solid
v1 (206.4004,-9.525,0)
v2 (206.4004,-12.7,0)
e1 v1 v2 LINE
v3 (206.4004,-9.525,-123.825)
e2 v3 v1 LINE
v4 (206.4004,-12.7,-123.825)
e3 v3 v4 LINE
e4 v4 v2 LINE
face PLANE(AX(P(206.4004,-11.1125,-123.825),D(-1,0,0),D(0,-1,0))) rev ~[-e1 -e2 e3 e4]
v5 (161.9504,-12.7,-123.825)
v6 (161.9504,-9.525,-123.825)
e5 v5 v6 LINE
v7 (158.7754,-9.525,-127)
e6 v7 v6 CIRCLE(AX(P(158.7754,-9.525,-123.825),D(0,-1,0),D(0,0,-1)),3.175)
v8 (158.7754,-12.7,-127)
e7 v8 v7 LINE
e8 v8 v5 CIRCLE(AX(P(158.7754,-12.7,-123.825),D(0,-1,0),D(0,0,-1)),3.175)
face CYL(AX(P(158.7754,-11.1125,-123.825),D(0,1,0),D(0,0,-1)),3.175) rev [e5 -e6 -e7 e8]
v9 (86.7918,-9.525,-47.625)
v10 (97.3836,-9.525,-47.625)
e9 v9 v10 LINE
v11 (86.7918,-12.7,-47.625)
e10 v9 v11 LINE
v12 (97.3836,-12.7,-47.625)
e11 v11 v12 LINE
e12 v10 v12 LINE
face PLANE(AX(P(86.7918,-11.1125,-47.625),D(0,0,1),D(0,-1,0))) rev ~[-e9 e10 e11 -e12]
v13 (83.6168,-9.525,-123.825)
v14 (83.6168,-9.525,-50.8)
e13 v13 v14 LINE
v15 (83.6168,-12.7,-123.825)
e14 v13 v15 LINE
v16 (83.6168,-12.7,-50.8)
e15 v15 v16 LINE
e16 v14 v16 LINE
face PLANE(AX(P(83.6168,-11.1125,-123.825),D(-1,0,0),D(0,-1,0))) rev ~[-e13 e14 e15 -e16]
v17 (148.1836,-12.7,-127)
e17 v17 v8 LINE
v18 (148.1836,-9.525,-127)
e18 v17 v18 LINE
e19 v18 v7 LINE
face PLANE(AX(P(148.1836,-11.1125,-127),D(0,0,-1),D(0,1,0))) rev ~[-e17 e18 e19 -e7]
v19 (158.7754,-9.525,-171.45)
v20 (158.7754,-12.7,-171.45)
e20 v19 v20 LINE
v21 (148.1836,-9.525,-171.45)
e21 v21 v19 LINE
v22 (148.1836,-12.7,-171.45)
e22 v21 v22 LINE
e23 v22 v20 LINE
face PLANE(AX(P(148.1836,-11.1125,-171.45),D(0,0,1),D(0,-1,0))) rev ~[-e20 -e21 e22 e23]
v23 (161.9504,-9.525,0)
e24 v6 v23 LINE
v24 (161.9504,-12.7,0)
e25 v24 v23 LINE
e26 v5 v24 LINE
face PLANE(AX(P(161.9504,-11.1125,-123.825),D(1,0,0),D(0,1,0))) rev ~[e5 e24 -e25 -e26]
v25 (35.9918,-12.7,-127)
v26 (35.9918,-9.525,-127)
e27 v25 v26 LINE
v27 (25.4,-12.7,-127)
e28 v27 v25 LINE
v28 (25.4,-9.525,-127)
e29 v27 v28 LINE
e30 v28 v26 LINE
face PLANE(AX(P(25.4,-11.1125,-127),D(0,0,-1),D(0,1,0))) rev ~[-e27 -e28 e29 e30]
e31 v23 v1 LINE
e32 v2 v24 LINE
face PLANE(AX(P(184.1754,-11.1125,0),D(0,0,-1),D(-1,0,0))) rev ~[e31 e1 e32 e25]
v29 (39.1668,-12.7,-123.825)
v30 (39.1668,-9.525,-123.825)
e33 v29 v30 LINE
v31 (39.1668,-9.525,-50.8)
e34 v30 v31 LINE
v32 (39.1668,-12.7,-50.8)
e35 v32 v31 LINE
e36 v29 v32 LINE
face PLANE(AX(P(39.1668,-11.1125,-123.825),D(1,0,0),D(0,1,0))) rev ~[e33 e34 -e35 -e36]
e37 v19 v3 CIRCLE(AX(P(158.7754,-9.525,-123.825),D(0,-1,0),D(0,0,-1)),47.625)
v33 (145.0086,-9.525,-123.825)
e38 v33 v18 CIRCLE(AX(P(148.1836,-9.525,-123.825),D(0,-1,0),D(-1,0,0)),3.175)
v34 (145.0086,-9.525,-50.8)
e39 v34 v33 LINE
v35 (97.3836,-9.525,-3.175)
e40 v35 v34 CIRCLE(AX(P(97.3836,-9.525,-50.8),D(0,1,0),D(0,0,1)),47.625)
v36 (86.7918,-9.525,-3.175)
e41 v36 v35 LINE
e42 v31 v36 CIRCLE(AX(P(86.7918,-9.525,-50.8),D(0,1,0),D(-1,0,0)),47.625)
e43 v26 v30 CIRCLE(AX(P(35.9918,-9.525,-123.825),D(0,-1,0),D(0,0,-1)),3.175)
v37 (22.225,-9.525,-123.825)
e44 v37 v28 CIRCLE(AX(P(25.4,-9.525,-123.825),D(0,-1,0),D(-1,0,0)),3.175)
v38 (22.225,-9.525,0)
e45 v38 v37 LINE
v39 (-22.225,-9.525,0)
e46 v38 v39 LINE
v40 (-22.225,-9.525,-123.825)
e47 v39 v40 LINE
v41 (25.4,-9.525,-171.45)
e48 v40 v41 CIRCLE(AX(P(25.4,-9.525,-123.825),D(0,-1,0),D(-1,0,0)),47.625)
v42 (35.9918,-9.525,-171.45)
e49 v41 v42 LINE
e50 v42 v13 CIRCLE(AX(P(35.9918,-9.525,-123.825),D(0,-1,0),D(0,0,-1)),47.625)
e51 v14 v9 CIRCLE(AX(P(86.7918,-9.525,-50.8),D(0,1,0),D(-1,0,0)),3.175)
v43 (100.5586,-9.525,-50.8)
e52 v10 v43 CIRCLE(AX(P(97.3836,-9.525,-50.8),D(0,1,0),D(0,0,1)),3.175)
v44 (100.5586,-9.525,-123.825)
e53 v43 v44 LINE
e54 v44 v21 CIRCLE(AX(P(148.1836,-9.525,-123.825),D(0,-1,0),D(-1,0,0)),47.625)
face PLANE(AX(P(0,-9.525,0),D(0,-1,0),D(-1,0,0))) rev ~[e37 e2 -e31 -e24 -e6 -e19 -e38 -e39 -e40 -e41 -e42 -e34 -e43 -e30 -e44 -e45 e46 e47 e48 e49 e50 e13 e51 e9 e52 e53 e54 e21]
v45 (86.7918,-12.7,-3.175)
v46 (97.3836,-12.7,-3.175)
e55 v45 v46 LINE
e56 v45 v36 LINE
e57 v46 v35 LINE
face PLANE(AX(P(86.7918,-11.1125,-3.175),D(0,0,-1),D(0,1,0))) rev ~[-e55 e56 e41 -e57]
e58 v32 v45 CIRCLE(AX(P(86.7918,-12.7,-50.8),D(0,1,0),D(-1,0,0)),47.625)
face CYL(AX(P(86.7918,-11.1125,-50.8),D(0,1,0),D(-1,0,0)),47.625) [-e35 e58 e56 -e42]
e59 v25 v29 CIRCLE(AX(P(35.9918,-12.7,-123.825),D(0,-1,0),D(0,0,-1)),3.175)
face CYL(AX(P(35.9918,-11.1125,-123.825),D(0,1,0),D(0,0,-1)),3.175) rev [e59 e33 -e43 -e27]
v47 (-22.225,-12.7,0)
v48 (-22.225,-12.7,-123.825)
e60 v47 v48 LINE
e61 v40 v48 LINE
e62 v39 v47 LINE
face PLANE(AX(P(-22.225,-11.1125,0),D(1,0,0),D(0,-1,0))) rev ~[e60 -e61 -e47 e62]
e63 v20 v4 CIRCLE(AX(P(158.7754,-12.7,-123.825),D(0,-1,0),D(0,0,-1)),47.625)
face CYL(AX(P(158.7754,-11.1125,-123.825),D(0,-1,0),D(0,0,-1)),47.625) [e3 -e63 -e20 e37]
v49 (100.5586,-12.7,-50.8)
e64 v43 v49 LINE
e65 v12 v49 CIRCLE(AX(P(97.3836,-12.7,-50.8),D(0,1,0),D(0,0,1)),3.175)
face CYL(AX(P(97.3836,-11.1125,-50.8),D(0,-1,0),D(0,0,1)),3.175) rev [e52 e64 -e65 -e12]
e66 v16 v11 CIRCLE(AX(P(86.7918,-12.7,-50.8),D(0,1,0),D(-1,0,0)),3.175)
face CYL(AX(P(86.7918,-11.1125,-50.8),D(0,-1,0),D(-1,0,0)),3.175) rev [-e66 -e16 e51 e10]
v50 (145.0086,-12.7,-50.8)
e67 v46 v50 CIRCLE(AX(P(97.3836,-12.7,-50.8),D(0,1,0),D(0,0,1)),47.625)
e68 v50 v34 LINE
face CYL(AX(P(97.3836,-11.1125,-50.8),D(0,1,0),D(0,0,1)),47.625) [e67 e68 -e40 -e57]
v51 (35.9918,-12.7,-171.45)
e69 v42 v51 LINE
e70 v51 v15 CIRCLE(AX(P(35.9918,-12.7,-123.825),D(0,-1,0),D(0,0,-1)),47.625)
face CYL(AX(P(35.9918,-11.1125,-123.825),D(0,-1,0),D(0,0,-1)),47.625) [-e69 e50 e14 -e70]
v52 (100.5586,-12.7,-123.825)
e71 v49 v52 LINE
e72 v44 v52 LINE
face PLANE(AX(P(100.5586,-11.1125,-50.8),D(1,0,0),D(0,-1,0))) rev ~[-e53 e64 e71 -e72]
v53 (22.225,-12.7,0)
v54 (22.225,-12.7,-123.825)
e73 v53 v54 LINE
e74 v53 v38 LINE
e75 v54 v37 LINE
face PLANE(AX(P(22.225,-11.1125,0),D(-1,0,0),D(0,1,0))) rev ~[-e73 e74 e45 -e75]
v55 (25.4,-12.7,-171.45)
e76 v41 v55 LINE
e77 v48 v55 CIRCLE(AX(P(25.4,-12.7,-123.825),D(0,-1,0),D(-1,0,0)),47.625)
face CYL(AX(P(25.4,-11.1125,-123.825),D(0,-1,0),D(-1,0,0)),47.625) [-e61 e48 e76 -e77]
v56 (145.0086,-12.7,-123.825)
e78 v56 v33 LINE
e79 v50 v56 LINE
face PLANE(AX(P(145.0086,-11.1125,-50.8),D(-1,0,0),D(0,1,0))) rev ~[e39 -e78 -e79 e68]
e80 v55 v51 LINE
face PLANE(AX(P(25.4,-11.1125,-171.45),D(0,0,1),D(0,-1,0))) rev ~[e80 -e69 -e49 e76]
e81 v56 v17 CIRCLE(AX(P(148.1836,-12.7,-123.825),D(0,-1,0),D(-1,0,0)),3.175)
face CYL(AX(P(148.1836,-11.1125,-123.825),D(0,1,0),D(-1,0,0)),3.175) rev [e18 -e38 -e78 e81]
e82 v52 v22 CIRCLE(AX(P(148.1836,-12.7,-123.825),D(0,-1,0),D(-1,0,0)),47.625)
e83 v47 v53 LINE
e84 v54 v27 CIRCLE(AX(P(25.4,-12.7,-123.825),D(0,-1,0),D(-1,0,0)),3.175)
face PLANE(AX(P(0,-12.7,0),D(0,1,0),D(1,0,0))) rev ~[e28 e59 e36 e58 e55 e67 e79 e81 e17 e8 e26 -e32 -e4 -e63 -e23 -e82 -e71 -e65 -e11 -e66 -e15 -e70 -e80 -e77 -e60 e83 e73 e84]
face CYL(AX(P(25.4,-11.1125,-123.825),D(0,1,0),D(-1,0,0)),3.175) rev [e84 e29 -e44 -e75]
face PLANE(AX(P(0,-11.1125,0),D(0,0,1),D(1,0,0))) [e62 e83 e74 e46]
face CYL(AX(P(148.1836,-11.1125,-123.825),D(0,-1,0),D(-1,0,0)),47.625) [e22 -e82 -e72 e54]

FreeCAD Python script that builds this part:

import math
import FreeCAD as App
import Part
import Sketcher
Q = App.Units.Quantity


def add_polygon(sketch, points):
    """Adds a closed chain of lines whose ends are joined by coincident constraints."""
    first, n = sketch.GeometryCount, len(points)
    for a, b in zip(points, points[1:] + points[:1]):
        sketch.addGeometry(Part.LineSegment(App.Vector(*a, 0), App.Vector(*b, 0)), False)
    for i in range(n):
        sketch.addConstraint(Sketcher.Constraint("Coincident", first + i, 2, first + (i + 1) % n, 1))

doc = App.newDocument("Part")
body = doc.addObject("PartDesign::Body", "Body")

sketch1 = body.newObject("Sketcher::SketchObject", "Sketch")
sketch1.AttachmentSupport = (doc.getObject("XY_Plane"), [""])
sketch1.MapMode = "FlatFace"
add_polygon(sketch1, [(-22.2, -9.5), (-22.2, -12.7), (22.2, -12.7), (22.2, -9.5)])
sketch1.addConstraint(Sketcher.Constraint("Vertical", 0))
sketch1.addConstraint(Sketcher.Constraint("Horizontal", 1))
sketch1.addConstraint(Sketcher.Constraint("Vertical", 2))
sketch1.addConstraint(Sketcher.Constraint("Horizontal", 3))
sketch1.addConstraint(Sketcher.Constraint("DistanceX", 1, 1, 1, 2, Q("1.75 in")))
sketch1.addConstraint(Sketcher.Constraint("DistanceY", 0, 2, -1, 1, Q("0.5 in")))
sketch1.addConstraint(Sketcher.Constraint("DistanceY", 0, 2, 0, 1, Q("0.125 in")))
sketch1.addConstraint(Sketcher.Constraint("DistanceX", 0, 2, -1, 1, Q("0.875 in")))

sketch2 = body.newObject("Sketcher::SketchObject", "Sketch001")
sketch2.AttachmentSupport = (doc.getObject("XZ_Plane"), [""])
sketch2.MapMode = "FlatFace"
sketch2.addGeometry(Part.LineSegment(App.Vector(0, 0, 0), App.Vector(0, -124, 0)), False)
sketch2.addGeometry(Part.ArcOfCircle(Part.Circle(App.Vector(25, -124, 0), App.Vector(0, 0, 1), 25), math.radians(180), math.radians(270)), False)
sketch2.addGeometry(Part.LineSegment(App.Vector(25, -149, 0), App.Vector(36, -149, 0)), False)
sketch2.addGeometry(Part.ArcOfCircle(Part.Circle(App.Vector(36, -124, 0), App.Vector(0, 0, 1), 25), math.radians(-90), math.radians(0)), False)
sketch2.addGeometry(Part.LineSegment(App.Vector(61, -124, 0), App.Vector(61, -51, 0)), False)
sketch2.addGeometry(Part.ArcOfCircle(Part.Circle(App.Vector(87, -51, 0), App.Vector(0, 0, 1), 25), math.radians(90), math.radians(180)), False)
sketch2.addGeometry(Part.LineSegment(App.Vector(87, -25, 0), App.Vector(97, -25, 0)), False)
sketch2.addGeometry(Part.ArcOfCircle(Part.Circle(App.Vector(97, -51, 0), App.Vector(0, 0, 1), 25), math.radians(0), math.radians(90)), False)
sketch2.addGeometry(Part.LineSegment(App.Vector(123, -51, 0), App.Vector(123, -124, 0)), False)
sketch2.addGeometry(Part.ArcOfCircle(Part.Circle(App.Vector(148, -124, 0), App.Vector(0, 0, 1), 25), math.radians(180), math.radians(270)), False)
sketch2.addGeometry(Part.LineSegment(App.Vector(148, -149, 0), App.Vector(159, -149, 0)), False)
sketch2.addGeometry(Part.ArcOfCircle(Part.Circle(App.Vector(159, -124, 0), App.Vector(0, 0, 1), 25), math.radians(-90), math.radians(0)), False)
sketch2.addGeometry(Part.LineSegment(App.Vector(184, -124, 0), App.Vector(184, 0, 0)), False)
sketch2.addConstraint(Sketcher.Constraint("Tangent", 0, 2, 1, 1))
sketch2.addConstraint(Sketcher.Constraint("Tangent", 1, 2, 2, 1))
sketch2.addConstraint(Sketcher.Constraint("Tangent", 2, 2, 3, 1))
sketch2.addConstraint(Sketcher.Constraint("Tangent", 3, 2, 4, 1))
sketch2.addConstraint(Sketcher.Constraint("Tangent", 4, 2, 5, 2))
sketch2.addConstraint(Sketcher.Constraint("Tangent", 5, 1, 6, 1))
sketch2.addConstraint(Sketcher.Constraint("Tangent", 6, 2, 7, 2))
sketch2.addConstraint(Sketcher.Constraint("Tangent", 7, 1, 8, 1))
sketch2.addConstraint(Sketcher.Constraint("Tangent", 8, 2, 9, 1))
sketch2.addConstraint(Sketcher.Constraint("Tangent", 9, 2, 10, 1))
sketch2.addConstraint(Sketcher.Constraint("Tangent", 10, 2, 11, 1))
sketch2.addConstraint(Sketcher.Constraint("Tangent", 11, 2, 12, 1))
sketch2.addConstraint(Sketcher.Constraint("Vertical", 0))
sketch2.addConstraint(Sketcher.Constraint("Horizontal", 2))
sketch2.addConstraint(Sketcher.Constraint("Vertical", 4))
sketch2.addConstraint(Sketcher.Constraint("Horizontal", 6))
sketch2.addConstraint(Sketcher.Constraint("Vertical", 8))
sketch2.addConstraint(Sketcher.Constraint("Horizontal", 10))
sketch2.addConstraint(Sketcher.Constraint("Vertical", 12))
sketch2.addConstraint(Sketcher.Constraint("Coincident", 0, 1, -1, 1))
sketch2.addConstraint(Sketcher.Constraint("Equal", 1, 3))
sketch2.addConstraint(Sketcher.Constraint("Equal", 3, 5))
sketch2.addConstraint(Sketcher.Constraint("Equal", 5, 7))
sketch2.addConstraint(Sketcher.Constraint("Equal", 7, 9))
sketch2.addConstraint(Sketcher.Constraint("Equal", 9, 11))
sketch2.addConstraint(Sketcher.Constraint("PointOnObject", 12, 2, -1))
sketch2.addConstraint(Sketcher.Constraint("Horizontal", 3, 3, 9, 3))
sketch2.addConstraint(Sketcher.Constraint("Equal", 2, 6))
sketch2.addConstraint(Sketcher.Constraint("Equal", 6, 10))
sketch2.addConstraint(Sketcher.Constraint("Radius", 1, Q("1 in")))
sketch2.addConstraint(Sketcher.Constraint("DistanceY", 5, 3, -1, 1, Q("2 in")))
sketch2.addConstraint(Sketcher.Constraint("DistanceX", 2, 1, 2, 2, Q("0.417 in")))
sketch2.addConstraint(Sketcher.Constraint("DistanceY", 0, 2, 0, 1, Q("4.875 in")))
doc.recompute()

additivepipe = body.newObject("PartDesign::AdditivePipe", "AdditivePipe")
additivepipe.Profile = sketch1
additivepipe.Spine = (sketch2, ["Edge1", "Edge2", "Edge3", "Edge4", "Edge5", "Edge6", "Edge7", "Edge8", "Edge9", "Edge10", "Edge11", "Edge12", "Edge13"])

doc.recompute()
